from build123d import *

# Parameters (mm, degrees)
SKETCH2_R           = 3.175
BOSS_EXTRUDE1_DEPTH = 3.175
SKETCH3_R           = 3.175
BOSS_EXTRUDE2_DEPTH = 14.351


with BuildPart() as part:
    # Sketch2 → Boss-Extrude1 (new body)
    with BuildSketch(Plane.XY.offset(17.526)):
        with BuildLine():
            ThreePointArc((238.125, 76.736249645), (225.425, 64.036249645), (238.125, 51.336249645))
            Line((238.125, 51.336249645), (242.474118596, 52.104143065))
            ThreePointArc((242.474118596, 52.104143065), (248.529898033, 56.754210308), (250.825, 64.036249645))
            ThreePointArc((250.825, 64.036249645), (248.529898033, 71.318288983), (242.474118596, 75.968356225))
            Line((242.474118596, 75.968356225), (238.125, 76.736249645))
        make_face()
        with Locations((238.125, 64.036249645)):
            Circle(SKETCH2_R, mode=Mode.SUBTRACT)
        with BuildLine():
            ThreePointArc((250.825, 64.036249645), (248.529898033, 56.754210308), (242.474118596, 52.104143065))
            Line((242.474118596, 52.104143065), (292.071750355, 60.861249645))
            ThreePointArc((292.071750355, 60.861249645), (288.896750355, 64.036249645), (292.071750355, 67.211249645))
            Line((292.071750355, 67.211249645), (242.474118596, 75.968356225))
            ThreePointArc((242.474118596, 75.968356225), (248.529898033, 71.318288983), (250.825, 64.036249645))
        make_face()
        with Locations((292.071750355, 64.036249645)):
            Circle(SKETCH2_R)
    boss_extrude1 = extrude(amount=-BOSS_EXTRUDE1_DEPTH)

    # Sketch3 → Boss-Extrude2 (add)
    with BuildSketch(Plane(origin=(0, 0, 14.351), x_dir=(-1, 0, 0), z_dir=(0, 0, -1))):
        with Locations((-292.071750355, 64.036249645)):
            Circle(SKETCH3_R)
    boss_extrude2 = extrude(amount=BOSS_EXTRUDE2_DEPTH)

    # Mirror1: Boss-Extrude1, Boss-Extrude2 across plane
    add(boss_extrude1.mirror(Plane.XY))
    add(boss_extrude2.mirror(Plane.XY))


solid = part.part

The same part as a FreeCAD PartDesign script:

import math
import FreeCAD as App
import Part
import Sketcher
from FreeCAD import Vector
Q = App.Units.Quantity

doc = App.newDocument("Part")
body = doc.addObject("PartDesign::Body", "Body")

sketch1 = body.newObject("Sketcher::SketchObject", "Sketch")
sketch1.AttachmentSupport = (doc.getObject("XY_Plane"), [""])
sketch1.MapMode = "FlatFace"
sketch1.AttachmentOffset = App.Placement(Vector(0, 0, 0.69 * 25.4), App.Rotation())
sketch1.addGeometry([
    Part.ArcOfCircle(Part.Circle(Vector(238.1, 64, 0), Vector(0, 0, 1), 12.7), math.radians(90), math.radians(270)),
    Part.LineSegment(Vector(238.1, 51.3, 0), Vector(242.5, 52.1, 0)),
    Part.LineSegment(Vector(242.5, 52.1, 0), Vector(292.1, 60.9, 0)),
    Part.ArcOfCircle(Part.Circle(Vector(292.1, 64, 0), Vector(0, 0, 1), 3.2), math.radians(-90), math.radians(90)),
    Part.LineSegment(Vector(292.1, 67.2, 0), Vector(242.5, 76, 0)),
    Part.LineSegment(Vector(242.5, 76, 0), Vector(238.1, 76.7, 0)),
    Part.Circle(Vector(238.1, 64, 0), Vector(0, 0, 1), 3.2),
], False)
sketch1.addConstraint([
    Sketcher.Constraint("Coincident", 0, 2, 1, 1),
    Sketcher.Constraint("Coincident", 1, 2, 2, 1),
    Sketcher.Constraint("Coincident", 2, 2, 3, 1),
    Sketcher.Constraint("Coincident", 3, 2, 4, 1),
    Sketcher.Constraint("Coincident", 4, 2, 5, 1),
    Sketcher.Constraint("Coincident", 5, 2, 0, 1),
    Sketcher.Constraint("Coincident", 6, 3, 0, 3),
    Sketcher.Constraint("Equal", 3, 6),
    Sketcher.Constraint("Parallel", 1, 2),
    Sketcher.Constraint("Parallel", 4, 5),
    Sketcher.Constraint("Horizontal", 0, 3, 3, 3),
    Sketcher.Constraint("Vertical", 6, 3, 0, 2),
    Sketcher.Constraint("Vertical", 3, 3, 2, 2),
    Sketcher.Constraint("Vertical", 2, 2, 3, 2),
    Sketcher.Constraint("Vertical", 1, 2, 4, 2),
    Sketcher.Constraint("Vertical", 0, 2, 5, 2),
    Sketcher.Constraint("Radius", 0, Q("0.5 in")),
    Sketcher.Constraint("Diameter", 6, Q("0.25 in")),
    Sketcher.Constraint("DistanceX", -1, 1, 0, 3, Q("9.375 in")),
    Sketcher.Constraint("Distance", 1, 4.416389),
    Sketcher.Constraint("Distance", 2, 50.364789),
    Sketcher.Constraint("DistanceY", -1, 1, 0, 3, 64.03625),
])
pad1 = body.newObject("PartDesign::Pad", "Pad")
pad1.Profile = sketch1
pad1.Length = Q("0.125 in")
pad1.Reversed = True

sketch2 = body.newObject("Sketcher::SketchObject", "Sketch001")
sketch2.AttachmentSupport = (doc.getObject("XY_Plane"), [""])
sketch2.MapMode = "FlatFace"
sketch2.AttachmentOffset = App.Placement(Vector(0, 0, 0.565 * 25.4), App.Rotation())
sketch2.addGeometry(Part.Circle(Vector(292.1, 64, 0), Vector(0, 0, 1), 3.2), False)
sketch2.addConstraint([
    Sketcher.Constraint("Diameter", 0, Q("0.25 in")),
    Sketcher.Constraint("DistanceX", -1, 1, 0, 3, 292.07175),
    Sketcher.Constraint("DistanceY", -1, 1, 0, 3, 64.03625),
])
pad2 = body.newObject("PartDesign::Pad", "Pad001")
pad2.Profile = sketch2
pad2.Length = Q("0.565 in")
pad2.Reversed = True
doc.recompute()

mirrored = body.newObject("PartDesign::Mirrored", "Mirrored")
mirrored.Originals = [pad1, pad2]
mirrored.MirrorPlane = (doc.getObject("XY_Plane"), [""])
body.Tip = mirrored

doc.recompute()
